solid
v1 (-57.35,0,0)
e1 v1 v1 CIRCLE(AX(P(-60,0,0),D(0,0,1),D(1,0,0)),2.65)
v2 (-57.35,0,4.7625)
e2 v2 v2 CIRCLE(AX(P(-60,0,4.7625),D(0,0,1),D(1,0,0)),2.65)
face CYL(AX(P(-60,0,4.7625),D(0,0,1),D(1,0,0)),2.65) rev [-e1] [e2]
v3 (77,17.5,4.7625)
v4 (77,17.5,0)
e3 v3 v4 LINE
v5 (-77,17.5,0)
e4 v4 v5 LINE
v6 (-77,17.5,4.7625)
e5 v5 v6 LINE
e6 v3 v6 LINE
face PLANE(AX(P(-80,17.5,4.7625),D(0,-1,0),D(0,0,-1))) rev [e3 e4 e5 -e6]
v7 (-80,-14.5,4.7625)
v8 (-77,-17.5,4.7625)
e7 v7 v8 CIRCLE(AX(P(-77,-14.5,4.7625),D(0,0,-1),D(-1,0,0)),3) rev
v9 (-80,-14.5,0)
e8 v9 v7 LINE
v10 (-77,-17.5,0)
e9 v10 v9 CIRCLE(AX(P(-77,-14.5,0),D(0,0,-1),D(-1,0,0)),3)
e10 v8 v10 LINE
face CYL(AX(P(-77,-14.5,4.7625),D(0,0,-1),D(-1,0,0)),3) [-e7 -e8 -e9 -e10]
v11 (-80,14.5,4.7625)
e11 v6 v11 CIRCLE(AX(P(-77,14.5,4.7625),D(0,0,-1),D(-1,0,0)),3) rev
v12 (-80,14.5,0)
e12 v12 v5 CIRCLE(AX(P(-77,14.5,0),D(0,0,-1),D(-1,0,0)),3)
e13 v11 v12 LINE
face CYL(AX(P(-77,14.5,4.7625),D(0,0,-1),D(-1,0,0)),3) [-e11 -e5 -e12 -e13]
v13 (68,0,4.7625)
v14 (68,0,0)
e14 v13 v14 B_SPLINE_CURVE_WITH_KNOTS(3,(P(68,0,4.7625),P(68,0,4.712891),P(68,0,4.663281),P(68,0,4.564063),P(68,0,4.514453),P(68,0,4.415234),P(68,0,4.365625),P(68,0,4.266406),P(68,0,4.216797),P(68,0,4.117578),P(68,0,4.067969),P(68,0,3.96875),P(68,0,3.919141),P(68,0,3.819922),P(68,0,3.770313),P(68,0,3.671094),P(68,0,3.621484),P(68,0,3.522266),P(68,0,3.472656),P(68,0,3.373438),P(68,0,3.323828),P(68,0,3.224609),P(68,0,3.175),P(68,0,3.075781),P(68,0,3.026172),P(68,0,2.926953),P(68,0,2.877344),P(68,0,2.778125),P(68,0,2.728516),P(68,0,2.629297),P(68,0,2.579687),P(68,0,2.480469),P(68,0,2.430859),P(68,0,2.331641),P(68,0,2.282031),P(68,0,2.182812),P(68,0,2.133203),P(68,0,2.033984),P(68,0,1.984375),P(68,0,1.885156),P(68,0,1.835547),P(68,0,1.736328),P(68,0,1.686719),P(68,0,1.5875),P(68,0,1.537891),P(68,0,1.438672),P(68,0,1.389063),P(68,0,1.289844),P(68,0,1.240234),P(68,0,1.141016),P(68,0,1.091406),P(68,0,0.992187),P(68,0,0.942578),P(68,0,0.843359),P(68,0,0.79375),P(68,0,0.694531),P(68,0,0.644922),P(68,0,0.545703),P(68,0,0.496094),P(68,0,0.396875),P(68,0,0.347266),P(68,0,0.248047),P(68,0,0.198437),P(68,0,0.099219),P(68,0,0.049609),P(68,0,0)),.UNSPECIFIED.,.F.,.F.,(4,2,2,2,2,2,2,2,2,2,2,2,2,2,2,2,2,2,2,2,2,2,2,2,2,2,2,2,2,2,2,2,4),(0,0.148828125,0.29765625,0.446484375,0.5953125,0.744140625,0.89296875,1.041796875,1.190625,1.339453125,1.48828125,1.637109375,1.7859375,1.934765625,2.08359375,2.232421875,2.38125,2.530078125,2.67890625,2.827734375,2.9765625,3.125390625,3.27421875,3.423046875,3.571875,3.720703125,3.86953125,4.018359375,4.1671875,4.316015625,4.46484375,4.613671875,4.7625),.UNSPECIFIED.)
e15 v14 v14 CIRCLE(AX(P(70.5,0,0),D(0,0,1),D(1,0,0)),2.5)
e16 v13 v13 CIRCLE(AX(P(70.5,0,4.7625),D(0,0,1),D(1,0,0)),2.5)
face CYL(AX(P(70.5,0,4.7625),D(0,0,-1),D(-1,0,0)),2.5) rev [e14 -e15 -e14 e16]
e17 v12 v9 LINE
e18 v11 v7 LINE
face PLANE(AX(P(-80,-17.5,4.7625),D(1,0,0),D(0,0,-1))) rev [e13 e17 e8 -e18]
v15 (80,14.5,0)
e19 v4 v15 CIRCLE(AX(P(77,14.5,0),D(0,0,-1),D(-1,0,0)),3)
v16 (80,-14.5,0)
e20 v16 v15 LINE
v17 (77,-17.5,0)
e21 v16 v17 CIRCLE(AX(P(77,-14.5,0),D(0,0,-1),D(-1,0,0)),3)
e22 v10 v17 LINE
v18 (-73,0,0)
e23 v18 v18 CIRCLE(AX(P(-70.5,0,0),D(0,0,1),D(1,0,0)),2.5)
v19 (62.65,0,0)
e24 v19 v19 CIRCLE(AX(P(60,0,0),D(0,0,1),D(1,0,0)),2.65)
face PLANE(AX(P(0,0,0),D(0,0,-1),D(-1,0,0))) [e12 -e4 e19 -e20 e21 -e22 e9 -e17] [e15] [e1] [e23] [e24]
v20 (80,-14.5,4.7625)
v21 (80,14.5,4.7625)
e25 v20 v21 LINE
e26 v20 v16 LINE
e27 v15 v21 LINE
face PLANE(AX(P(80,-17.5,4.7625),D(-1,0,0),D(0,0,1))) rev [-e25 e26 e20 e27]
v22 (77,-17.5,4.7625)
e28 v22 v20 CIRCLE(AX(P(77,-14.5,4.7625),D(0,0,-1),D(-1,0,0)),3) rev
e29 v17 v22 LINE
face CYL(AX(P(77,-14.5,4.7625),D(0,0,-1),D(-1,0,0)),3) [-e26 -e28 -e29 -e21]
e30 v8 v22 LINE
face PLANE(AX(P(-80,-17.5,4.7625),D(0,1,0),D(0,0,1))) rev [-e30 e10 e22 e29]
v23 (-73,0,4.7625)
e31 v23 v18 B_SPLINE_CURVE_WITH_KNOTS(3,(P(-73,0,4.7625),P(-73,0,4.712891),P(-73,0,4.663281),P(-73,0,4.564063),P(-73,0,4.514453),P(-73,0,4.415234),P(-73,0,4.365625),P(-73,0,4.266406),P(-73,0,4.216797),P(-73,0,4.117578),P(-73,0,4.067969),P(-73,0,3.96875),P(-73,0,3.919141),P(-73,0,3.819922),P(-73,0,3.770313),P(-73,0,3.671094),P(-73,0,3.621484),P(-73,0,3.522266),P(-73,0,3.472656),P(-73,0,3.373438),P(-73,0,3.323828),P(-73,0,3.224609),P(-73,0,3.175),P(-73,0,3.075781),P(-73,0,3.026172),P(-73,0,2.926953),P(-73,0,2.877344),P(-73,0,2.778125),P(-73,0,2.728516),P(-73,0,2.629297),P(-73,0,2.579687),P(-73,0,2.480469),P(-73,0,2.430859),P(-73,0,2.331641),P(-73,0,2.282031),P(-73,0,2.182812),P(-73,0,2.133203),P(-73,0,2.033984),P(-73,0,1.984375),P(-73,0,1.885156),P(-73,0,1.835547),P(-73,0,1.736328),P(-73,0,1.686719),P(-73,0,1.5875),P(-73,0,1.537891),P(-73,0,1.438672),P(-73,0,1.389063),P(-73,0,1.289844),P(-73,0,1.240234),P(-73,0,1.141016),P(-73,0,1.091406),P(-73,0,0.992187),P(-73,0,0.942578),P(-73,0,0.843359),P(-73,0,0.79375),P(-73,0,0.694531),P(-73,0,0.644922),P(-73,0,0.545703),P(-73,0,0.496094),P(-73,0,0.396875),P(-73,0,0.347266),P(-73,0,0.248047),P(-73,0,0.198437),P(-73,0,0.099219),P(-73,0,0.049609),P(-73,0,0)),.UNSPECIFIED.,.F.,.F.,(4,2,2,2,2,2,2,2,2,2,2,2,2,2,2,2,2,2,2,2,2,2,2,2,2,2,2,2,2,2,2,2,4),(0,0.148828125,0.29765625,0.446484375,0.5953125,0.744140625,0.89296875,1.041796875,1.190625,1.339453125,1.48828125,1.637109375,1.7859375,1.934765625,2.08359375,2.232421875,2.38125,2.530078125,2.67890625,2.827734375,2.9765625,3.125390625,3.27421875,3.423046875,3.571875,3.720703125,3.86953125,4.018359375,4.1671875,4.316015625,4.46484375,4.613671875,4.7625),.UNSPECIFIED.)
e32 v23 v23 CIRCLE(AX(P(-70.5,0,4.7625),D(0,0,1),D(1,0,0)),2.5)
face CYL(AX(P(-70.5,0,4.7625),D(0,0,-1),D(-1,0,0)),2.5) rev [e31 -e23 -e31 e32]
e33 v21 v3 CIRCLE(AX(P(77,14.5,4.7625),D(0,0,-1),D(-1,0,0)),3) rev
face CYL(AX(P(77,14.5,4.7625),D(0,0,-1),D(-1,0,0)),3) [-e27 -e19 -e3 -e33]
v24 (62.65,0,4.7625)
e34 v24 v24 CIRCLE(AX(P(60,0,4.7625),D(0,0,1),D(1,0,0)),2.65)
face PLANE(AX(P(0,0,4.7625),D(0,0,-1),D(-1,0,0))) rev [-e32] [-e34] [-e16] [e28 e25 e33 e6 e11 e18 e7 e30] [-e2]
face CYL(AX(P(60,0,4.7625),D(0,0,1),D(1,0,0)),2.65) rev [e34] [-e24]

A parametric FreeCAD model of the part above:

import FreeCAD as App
import Part
import Sketcher
from FreeCAD import Vector


def edges_at(feature, points):
    """Names of the edges that pass closest to the given points."""
    edges = feature.Shape.Edges
    near = lambda p: min(range(len(edges)), key=lambda i: edges[i].distToShape(Part.Vertex(*p))[0])
    return sorted({f"Edge{near(p) + 1}" for p in points})


def add_polygon(sketch, points):
    """Adds a closed chain of lines whose ends are joined by coincident constraints."""
    first, n = sketch.GeometryCount, len(points)
    for a, b in zip(points, points[1:] + points[:1]):
        sketch.addGeometry(Part.LineSegment(App.Vector(*a, 0), App.Vector(*b, 0)), False)
    for i in range(n):
        sketch.addConstraint(Sketcher.Constraint("Coincident", first + i, 2, first + (i + 1) % n, 1))

doc = App.newDocument("Part")
params = doc.addObject("Spreadsheet::Sheet", "Params")
for row, (alias, value) in enumerate([
    ("sketch1_diameter", "5 mm"),
    ("sketch1_width", "160 mm"),
    ("sketch1_height", "35 mm"),
    ("pad1_length", "4.7625 mm"),
    ("sketch2_diameter", "5.3 mm"),
    ("hole_diameter", "5.3 mm"),
    ("fillet_radius", "3 mm"),
], start=1):
    params.set(f"A{row}", alias)
    params.set(f"B{row}", "=" + value)
    params.setAlias(f"B{row}", alias)

body = doc.addObject("PartDesign::Body", "Body")

# Sketch on XY plane
sketch1 = body.newObject("Sketcher::SketchObject", "Sketch")
sketch1.AttachmentSupport = (doc.getObject("XY_Plane"), [""])
sketch1.MapMode = "FlatFace"
add_polygon(sketch1, [(-80, 17.5), (-80, -17.5), (80, -17.5), (80, 17.5)])  # lines 0-3
sketch1.addGeometry(Part.Circle(Vector(-70.5, 0, 0), Vector(0, 0, 1), 2.5), False)  # 4
sketch1.addGeometry(Part.Circle(Vector(70.5, 0, 0), Vector(0, 0, 1), 2.5), False)  # 5
sketch1.addConstraint([
    Sketcher.Constraint("Vertical", 0),
    Sketcher.Constraint("Horizontal", 1),
    Sketcher.Constraint("Vertical", 2),
    Sketcher.Constraint("Horizontal", 3),
    Sketcher.Constraint("Equal", 4, 5),
    Sketcher.Constraint("Symmetric", 4, 3, 5, 3, -1, 1),
    Sketcher.Constraint("Symmetric", 0, 2, 2, 2, -1, 1),
    Sketcher.Constraint("PointOnObject", 4, 3, -1),
    Sketcher.Constraint("Diameter", 4, 5.0),
    Sketcher.Constraint("DistanceX", 1, 1, 1, 2, 160.0),
    Sketcher.Constraint("DistanceY", 0, 2, 0, 1, 35.0),
    Sketcher.Constraint("DistanceX", 4, 3, 5, 3, 141.0),
])
sketch1.setExpression("Constraints[12]", "Params.sketch1_diameter")
sketch1.setExpression("Constraints[13]", "Params.sketch1_width")
sketch1.setExpression("Constraints[14]", "Params.sketch1_height")
pad1 = body.newObject("PartDesign::Pad", "Pad")
pad1.Profile = sketch1
pad1.setExpression("Length", "Params.pad1_length")

# Sketch on XY plane
sketch2 = body.newObject("Sketcher::SketchObject", "Sketch001")
sketch2.AttachmentSupport = (doc.getObject("XY_Plane"), [""])
sketch2.MapMode = "FlatFace"
sketch2.AttachmentOffset = App.Placement(Vector(0, 0, 4.7625), App.Rotation())
sketch2.addGeometry([
    Part.Circle(Vector(-60, 0, 0), Vector(0, 0, 1), 2.6),
    Part.Circle(Vector(60, 0, 0), Vector(0, 0, 1), 2.6),
], False)
sketch2.addConstraint([
    Sketcher.Constraint("Equal", 0, 1),
    Sketcher.Constraint("Symmetric", 0, 3, 1, 3, -1, 1),
    Sketcher.Constraint("PointOnObject", 0, 3, -1),
    Sketcher.Constraint("Diameter", 0, 5.3),
    Sketcher.Constraint("DistanceX", 0, 3, -1, 1, 60.0),
])
sketch2.setExpression("Constraints[3]", "Params.sketch2_diameter")
doc.recompute()
hole = body.newObject("PartDesign::Hole", "Hole")
hole.Profile = sketch2
hole.ThreadType = "None"
hole.setExpression("Diameter", "Params.hole_diameter")
hole.DepthType = "ThroughAll"
doc.recompute()

fillet = body.newObject("PartDesign::Fillet", "Fillet")
fillet.Base = (hole, edges_at(hole, [
    (80, -17.5, 2.381),
    (-80, -17.5, 2.381),
    (-80, 17.5, 2.381),
    (80, 17.5, 2.381),
]))
fillet.setExpression("Radius", "Params.fillet_radius")

doc.recompute()
